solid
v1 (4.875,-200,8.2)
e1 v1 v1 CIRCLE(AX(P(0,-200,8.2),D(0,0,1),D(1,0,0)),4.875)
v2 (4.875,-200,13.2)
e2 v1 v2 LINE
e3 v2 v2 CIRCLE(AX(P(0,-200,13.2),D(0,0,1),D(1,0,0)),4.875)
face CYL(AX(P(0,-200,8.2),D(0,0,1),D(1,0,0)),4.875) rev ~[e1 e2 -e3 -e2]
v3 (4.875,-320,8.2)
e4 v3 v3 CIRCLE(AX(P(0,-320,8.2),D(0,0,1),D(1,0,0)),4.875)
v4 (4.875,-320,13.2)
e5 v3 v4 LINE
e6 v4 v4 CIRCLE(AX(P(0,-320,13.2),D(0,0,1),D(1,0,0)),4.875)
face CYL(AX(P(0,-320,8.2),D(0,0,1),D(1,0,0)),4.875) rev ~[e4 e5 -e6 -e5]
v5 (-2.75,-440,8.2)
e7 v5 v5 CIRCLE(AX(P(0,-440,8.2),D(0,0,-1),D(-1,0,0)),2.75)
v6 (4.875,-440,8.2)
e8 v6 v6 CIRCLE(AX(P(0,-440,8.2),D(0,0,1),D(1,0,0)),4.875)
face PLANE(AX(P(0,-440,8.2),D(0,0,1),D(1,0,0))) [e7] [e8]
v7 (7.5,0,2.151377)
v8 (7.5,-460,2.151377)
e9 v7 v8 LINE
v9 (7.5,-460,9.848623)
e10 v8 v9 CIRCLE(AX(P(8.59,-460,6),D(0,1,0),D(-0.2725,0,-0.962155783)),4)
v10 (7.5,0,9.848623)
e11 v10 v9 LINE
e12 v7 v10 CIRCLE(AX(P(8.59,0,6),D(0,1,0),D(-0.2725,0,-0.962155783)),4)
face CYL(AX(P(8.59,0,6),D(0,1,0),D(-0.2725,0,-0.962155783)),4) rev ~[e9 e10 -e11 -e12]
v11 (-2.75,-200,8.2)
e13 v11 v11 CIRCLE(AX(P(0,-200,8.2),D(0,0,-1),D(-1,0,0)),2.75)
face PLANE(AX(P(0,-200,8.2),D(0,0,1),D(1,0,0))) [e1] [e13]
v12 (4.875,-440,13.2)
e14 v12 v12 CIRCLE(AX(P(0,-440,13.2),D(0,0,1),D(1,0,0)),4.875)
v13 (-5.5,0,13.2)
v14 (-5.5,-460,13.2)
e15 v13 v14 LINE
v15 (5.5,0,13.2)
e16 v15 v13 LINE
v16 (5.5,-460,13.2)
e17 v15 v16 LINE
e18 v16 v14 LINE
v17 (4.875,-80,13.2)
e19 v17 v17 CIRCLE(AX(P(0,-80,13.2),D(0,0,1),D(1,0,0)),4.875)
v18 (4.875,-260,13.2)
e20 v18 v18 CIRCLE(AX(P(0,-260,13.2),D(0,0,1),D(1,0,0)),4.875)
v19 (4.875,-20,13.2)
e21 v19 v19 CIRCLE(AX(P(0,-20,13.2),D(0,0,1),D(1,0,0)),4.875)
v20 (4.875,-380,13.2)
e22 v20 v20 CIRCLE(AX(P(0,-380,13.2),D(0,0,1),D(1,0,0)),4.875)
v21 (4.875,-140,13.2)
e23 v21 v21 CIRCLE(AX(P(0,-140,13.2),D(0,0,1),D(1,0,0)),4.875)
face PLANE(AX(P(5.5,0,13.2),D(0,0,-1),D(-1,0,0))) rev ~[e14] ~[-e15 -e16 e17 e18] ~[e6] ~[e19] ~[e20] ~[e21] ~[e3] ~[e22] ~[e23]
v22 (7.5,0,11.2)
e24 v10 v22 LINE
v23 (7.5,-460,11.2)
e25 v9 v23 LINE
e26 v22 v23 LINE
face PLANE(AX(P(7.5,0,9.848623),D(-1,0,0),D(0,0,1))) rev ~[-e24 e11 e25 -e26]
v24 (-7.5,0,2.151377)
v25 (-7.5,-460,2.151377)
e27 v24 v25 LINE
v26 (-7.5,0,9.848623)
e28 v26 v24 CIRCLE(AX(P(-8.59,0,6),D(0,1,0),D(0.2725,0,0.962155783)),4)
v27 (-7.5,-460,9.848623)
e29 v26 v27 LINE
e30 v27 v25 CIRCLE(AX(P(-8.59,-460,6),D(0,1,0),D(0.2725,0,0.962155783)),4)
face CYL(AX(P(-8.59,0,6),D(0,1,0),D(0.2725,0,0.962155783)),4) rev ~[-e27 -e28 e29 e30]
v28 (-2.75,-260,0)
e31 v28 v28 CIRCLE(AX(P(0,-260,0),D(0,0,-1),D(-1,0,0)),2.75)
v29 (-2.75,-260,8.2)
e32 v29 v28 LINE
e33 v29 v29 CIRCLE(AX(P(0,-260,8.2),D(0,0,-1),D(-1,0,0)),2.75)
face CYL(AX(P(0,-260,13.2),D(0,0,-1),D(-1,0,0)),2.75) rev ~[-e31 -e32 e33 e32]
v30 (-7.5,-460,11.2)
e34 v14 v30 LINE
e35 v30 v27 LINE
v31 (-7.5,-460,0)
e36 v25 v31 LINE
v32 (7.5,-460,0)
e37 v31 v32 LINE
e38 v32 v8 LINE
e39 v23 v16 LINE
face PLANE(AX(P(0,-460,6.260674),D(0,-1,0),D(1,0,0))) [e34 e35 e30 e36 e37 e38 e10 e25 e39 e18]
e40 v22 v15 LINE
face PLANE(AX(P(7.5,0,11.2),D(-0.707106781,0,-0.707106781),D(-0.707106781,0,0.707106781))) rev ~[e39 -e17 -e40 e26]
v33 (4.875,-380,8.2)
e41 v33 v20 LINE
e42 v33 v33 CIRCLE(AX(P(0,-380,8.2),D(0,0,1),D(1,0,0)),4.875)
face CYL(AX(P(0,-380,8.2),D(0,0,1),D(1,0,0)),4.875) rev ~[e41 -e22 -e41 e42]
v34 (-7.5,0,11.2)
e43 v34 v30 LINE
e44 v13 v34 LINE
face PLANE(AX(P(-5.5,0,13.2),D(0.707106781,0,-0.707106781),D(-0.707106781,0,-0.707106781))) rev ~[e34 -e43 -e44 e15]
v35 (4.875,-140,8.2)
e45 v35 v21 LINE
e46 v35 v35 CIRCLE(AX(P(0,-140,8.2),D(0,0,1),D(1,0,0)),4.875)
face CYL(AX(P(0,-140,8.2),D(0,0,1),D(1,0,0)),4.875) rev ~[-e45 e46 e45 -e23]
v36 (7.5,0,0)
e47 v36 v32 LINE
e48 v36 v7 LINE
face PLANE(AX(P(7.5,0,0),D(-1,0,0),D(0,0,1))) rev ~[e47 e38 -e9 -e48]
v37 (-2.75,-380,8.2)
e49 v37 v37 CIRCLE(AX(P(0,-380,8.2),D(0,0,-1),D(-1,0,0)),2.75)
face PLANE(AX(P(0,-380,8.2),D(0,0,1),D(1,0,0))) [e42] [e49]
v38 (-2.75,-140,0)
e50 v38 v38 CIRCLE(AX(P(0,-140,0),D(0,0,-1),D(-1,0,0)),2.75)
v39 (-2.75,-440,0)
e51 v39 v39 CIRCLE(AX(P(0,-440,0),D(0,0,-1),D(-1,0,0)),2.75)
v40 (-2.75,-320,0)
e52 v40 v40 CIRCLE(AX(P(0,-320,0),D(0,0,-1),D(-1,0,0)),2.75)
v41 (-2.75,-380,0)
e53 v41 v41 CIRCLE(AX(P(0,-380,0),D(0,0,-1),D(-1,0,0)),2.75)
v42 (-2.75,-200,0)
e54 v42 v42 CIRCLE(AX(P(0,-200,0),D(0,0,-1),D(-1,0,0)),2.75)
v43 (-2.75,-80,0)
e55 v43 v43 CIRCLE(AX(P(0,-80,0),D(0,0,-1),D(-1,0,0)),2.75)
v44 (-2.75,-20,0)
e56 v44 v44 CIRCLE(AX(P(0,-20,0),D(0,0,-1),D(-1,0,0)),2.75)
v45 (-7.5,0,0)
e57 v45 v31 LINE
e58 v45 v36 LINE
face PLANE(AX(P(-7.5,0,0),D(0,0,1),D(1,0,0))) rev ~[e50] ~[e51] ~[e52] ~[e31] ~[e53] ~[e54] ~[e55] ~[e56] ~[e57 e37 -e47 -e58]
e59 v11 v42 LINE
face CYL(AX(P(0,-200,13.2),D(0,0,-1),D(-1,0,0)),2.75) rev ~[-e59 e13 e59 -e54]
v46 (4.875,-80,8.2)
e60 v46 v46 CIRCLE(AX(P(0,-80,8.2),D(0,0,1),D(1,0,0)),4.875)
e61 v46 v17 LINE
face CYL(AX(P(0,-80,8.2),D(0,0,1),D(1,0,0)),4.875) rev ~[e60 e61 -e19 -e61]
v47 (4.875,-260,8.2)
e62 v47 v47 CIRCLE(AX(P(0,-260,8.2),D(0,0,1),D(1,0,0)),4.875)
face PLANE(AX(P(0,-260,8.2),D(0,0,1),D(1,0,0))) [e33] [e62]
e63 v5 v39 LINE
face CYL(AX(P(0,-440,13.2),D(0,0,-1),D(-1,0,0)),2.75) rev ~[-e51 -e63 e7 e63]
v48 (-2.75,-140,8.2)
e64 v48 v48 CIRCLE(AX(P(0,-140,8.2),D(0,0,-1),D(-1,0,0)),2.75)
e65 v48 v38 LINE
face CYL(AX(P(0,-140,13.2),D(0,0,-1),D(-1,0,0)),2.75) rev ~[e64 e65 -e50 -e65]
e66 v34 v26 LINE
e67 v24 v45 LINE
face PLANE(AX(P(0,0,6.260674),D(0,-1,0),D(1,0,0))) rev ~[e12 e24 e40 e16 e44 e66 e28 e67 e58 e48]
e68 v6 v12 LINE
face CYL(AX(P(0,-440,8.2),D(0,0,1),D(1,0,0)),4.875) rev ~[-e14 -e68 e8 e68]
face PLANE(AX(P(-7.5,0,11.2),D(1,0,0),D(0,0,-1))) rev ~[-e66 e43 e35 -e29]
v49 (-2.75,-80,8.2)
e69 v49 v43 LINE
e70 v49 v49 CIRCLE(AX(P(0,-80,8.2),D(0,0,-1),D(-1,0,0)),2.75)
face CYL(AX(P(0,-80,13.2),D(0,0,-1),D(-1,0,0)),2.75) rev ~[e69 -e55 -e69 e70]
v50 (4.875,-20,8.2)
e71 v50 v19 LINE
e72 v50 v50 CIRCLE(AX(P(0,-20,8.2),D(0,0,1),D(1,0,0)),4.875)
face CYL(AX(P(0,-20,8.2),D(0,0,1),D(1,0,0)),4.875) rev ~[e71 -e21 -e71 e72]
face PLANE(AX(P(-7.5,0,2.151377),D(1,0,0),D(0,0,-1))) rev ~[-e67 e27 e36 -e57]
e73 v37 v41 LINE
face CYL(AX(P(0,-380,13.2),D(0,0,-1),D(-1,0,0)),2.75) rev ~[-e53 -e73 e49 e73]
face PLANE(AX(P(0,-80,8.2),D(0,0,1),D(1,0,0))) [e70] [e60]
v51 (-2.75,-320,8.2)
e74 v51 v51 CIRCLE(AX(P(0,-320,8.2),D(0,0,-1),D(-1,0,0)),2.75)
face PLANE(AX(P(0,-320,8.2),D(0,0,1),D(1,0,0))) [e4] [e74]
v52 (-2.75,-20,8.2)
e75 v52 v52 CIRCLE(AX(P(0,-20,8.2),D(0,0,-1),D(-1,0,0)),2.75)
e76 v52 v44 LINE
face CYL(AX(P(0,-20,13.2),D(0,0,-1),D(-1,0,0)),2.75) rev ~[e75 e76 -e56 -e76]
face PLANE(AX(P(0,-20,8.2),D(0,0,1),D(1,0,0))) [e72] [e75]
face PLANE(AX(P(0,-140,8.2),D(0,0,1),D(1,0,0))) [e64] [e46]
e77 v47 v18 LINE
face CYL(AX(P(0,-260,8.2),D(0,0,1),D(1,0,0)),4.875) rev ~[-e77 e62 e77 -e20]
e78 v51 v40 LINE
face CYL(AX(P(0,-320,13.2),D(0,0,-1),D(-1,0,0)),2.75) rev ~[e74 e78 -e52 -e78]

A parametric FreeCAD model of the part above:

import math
import FreeCAD as App
import Part
import Sketcher
from FreeCAD import Vector
Q = App.Units.Quantity

doc = App.newDocument("Part")
body = doc.addObject("PartDesign::Body", "Body")

sketch1 = body.newObject("Sketcher::SketchObject", "Sketch")
sketch1.AttachmentSupport = (doc.getObject("XZ_Plane"), [""])
sketch1.MapMode = "FlatFace"
sketch1.addGeometry([
    Part.LineSegment(Vector(-7.5, 2.2, 0), Vector(-7.5, 0, 0)),
    Part.LineSegment(Vector(-7.5, 0, 0), Vector(7.5, 0, 0)),
    Part.LineSegment(Vector(7.5, 0, 0), Vector(7.5, 2.2, 0)),
    Part.ArcOfCircle(Part.Circle(Vector(8.6, 6, 0), Vector(0, 0, 1), 4), math.radians(106), math.radians(254)),
    Part.LineSegment(Vector(7.5, 9.8, 0), Vector(7.5, 11.2, 0)),
    Part.LineSegment(Vector(7.5, 11.2, 0), Vector(5.5, 13.2, 0)),
    Part.LineSegment(Vector(5.5, 13.2, 0), Vector(-5.5, 13.2, 0)),
    Part.LineSegment(Vector(-5.5, 13.2, 0), Vector(-7.5, 11.2, 0)),
    Part.LineSegment(Vector(-7.5, 11.2, 0), Vector(-7.5, 9.8, 0)),
    Part.ArcOfCircle(Part.Circle(Vector(-8.6, 6, 0), Vector(0, 0, 1), 4), math.radians(-74), math.radians(74)),
], False)
sketch1.addConstraint([
    Sketcher.Constraint("Coincident", 0, 2, 1, 1),
    Sketcher.Constraint("Coincident", 1, 2, 2, 1),
    Sketcher.Constraint("Coincident", 2, 2, 3, 2),
    Sketcher.Constraint("Coincident", 3, 1, 4, 1),
    Sketcher.Constraint("Coincident", 4, 2, 5, 1),
    Sketcher.Constraint("Coincident", 5, 2, 6, 1),
    Sketcher.Constraint("Coincident", 6, 2, 7, 1),
    Sketcher.Constraint("Coincident", 7, 2, 8, 1),
    Sketcher.Constraint("Coincident", 8, 2, 9, 2),
    Sketcher.Constraint("Coincident", 9, 1, 0, 1),
    Sketcher.Constraint("Vertical", 0),
    Sketcher.Constraint("Horizontal", 1),
    Sketcher.Constraint("Vertical", 2),
    Sketcher.Constraint("Vertical", 4),
    Sketcher.Constraint("Horizontal", 6),
    Sketcher.Constraint("Vertical", 8),
    Sketcher.Constraint("Equal", 3, 9),
    Sketcher.Constraint("Symmetric", 0, 2, 1, 2, -1, 1),
    Sketcher.Constraint("Symmetric", 3, 3, 9, 3, -2),
    Sketcher.Constraint("Symmetric", 4, 2, 7, 2, -2),
    Sketcher.Constraint("Perpendicular", 5, 7),
    Sketcher.Constraint("Vertical", 2, 2, 3, 1),
    Sketcher.Constraint("Equal", 5, 7),
    Sketcher.Constraint("Radius", 3, Q("4 mm")),
    Sketcher.Constraint("DistanceX", 1, 1, 1, 2, Q("15 mm")),
    Sketcher.Constraint("DistanceX", 6, 2, 6, 1, Q("11 mm")),
    Sketcher.Constraint("DistanceY", -1, 1, 3, 3, Q("6 mm")),
    Sketcher.Constraint("DistanceY", -1, 1, 4, 2, Q("11.2 mm")),
    Sketcher.Constraint("DistanceX", -1, 1, 3, 3, Q("8.59 mm")),
])
pad1 = body.newObject("PartDesign::Pad", "Pad")
pad1.Profile = sketch1
pad1.Length = 460

sketch2 = body.newObject("Sketcher::SketchObject", "Sketch001")
sketch2.AttachmentSupport = (doc.getObject("XY_Plane"), [""])
sketch2.MapMode = "FlatFace"
sketch2.AttachmentOffset = App.Placement(Vector(0, 0, 13.2), App.Rotation())
sketch2.addGeometry([
    Part.Circle(Vector(0, -20, 0), Vector(0, 0, 1), 2.8),
    Part.Circle(Vector(0, -80, 0), Vector(0, 0, 1), 2.8),
    Part.Circle(Vector(0, -140, 0), Vector(0, 0, 1), 2.8),
    Part.Circle(Vector(0, -200, 0), Vector(0, 0, 1), 2.8),
    Part.Circle(Vector(0, -260, 0), Vector(0, 0, 1), 2.8),
    Part.Circle(Vector(0, -320, 0), Vector(0, 0, 1), 2.8),
    Part.Circle(Vector(0, -380, 0), Vector(0, 0, 1), 2.8),
    Part.Circle(Vector(0, -440, 0), Vector(0, 0, 1), 2.8),
], False)
sketch2.addConstraint([
    Sketcher.Constraint("Equal", 0, 1),
    Sketcher.Constraint("Equal", 1, 2),
    Sketcher.Constraint("Equal", 2, 3),
    Sketcher.Constraint("Equal", 3, 4),
    Sketcher.Constraint("Equal", 4, 5),
    Sketcher.Constraint("Equal", 5, 6),
    Sketcher.Constraint("Equal", 6, 7),
    Sketcher.Constraint("PointOnObject", 0, 3, -2),
    Sketcher.Constraint("PointOnObject", 1, 3, -2),
    Sketcher.Constraint("PointOnObject", 2, 3, -2),
    Sketcher.Constraint("PointOnObject", 3, 3, -2),
    Sketcher.Constraint("PointOnObject", 4, 3, -2),
    Sketcher.Constraint("PointOnObject", 5, 3, -2),
    Sketcher.Constraint("PointOnObject", 6, 3, -2),
    Sketcher.Constraint("PointOnObject", 7, 3, -2),
    Sketcher.Constraint("Diameter", 0, Q("5.5 mm")),
    Sketcher.Constraint("DistanceY", 0, 3, -1, 1, Q("20 mm")),
    Sketcher.Constraint("DistanceY", 1, 3, -1, 1, Q("80 mm")),
    Sketcher.Constraint("DistanceY", 2, 3, -1, 1, Q("140 mm")),
    Sketcher.Constraint("DistanceY", 3, 3, -1, 1, Q("200 mm")),
    Sketcher.Constraint("DistanceY", 4, 3, -1, 1, Q("260 mm")),
    Sketcher.Constraint("DistanceY", 5, 3, -1, 1, Q("320 mm")),
    Sketcher.Constraint("DistanceY", 6, 3, -1, 1, Q("380 mm")),
    Sketcher.Constraint("DistanceY", 7, 3, -1, 1, Q("440 mm")),
])
doc.recompute()
hole = body.newObject("PartDesign::Hole", "Hole")
hole.Profile = sketch2
hole.ThreadType = "None"
hole.Diameter = 5.5
hole.DepthType = "ThroughAll"
hole.HoleCutType = "Counterbore"
hole.HoleCutDiameter = 9.75
hole.HoleCutDepth = 5

doc.recompute()
